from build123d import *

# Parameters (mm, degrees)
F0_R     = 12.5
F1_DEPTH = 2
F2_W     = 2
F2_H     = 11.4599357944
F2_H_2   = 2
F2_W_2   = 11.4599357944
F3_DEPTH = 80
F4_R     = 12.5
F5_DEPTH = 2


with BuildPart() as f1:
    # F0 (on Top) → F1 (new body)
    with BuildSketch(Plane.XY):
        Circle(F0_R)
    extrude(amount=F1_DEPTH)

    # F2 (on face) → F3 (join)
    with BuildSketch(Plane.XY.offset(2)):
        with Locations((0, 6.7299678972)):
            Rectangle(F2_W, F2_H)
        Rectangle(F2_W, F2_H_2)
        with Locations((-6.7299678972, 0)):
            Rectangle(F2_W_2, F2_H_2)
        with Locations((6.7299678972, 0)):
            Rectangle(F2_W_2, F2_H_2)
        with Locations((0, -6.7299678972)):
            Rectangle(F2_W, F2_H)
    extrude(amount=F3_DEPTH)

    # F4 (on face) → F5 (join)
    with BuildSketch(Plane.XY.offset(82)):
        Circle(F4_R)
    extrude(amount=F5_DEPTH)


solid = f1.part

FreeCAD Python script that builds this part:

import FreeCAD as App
import Part
import Sketcher
Q = App.Units.Quantity

doc = App.newDocument("Part")
body = doc.addObject("PartDesign::Body", "Body")

sketch1 = body.newObject("Sketcher::SketchObject", "Sketch")
sketch1.AttachmentSupport = (doc.getObject("XY_Plane"), [""])
sketch1.MapMode = "FlatFace"
sketch1.addGeometry(Part.Circle(App.Vector(0, 0, 0), App.Vector(0, 0, 1), 12), False)
sketch1.addConstraint([
    Sketcher.Constraint("Coincident", 0, 3, -1, 1),
    Sketcher.Constraint("Diameter", 0, Q("25 mm")),
])
pad1 = body.newObject("PartDesign::Pad", "Pad")
pad1.Profile = sketch1
pad1.Length = 2

sketch2 = body.newObject("Sketcher::SketchObject", "Sketch001")
sketch2.AttachmentSupport = (doc.getObject("XY_Plane"), [""])
sketch2.MapMode = "FlatFace"
sketch2.AttachmentOffset = App.Placement(App.Vector(0, 0, 2), App.Rotation())
sketch2.addGeometry([
    Part.LineSegment(App.Vector(-1, 12.5, 0), App.Vector(-1, 1, 0)),
    Part.LineSegment(App.Vector(-1, 1, 0), App.Vector(-12.5, 1, 0)),
    Part.LineSegment(App.Vector(-12.5, 1, 0), App.Vector(-12.5, -1, 0)),
    Part.LineSegment(App.Vector(-12.5, -1, 0), App.Vector(-1, -1, 0)),
    Part.LineSegment(App.Vector(-1, -1, 0), App.Vector(-1, -12.5, 0)),
    Part.LineSegment(App.Vector(-1, -12.5, 0), App.Vector(1, -12.5, 0)),
    Part.LineSegment(App.Vector(1, -12.5, 0), App.Vector(1, -1, 0)),
    Part.LineSegment(App.Vector(1, -1, 0), App.Vector(12.5, -1, 0)),
    Part.LineSegment(App.Vector(12.5, -1, 0), App.Vector(12.5, 1, 0)),
    Part.LineSegment(App.Vector(12.5, 1, 0), App.Vector(1, 1, 0)),
    Part.LineSegment(App.Vector(1, 1, 0), App.Vector(1, 12.5, 0)),
    Part.LineSegment(App.Vector(1, 12.5, 0), App.Vector(-1, 12.5, 0)),
], False)
sketch2.addConstraint([
    Sketcher.Constraint("Coincident", 0, 2, 1, 1),
    Sketcher.Constraint("Coincident", 1, 2, 2, 1),
    Sketcher.Constraint("Coincident", 2, 2, 3, 1),
    Sketcher.Constraint("Coincident", 3, 2, 4, 1),
    Sketcher.Constraint("Coincident", 4, 2, 5, 1),
    Sketcher.Constraint("Coincident", 5, 2, 6, 1),
    Sketcher.Constraint("Coincident", 6, 2, 7, 1),
    Sketcher.Constraint("Coincident", 7, 2, 8, 1),
    Sketcher.Constraint("Coincident", 8, 2, 9, 1),
    Sketcher.Constraint("Coincident", 9, 2, 10, 1),
    Sketcher.Constraint("Coincident", 10, 2, 11, 1),
    Sketcher.Constraint("Coincident", 11, 2, 0, 1),
    Sketcher.Constraint("Vertical", 0),
    Sketcher.Constraint("Horizontal", 1),
    Sketcher.Constraint("Vertical", 2),
    Sketcher.Constraint("Horizontal", 3),
    Sketcher.Constraint("Vertical", 4),
    Sketcher.Constraint("Horizontal", 5),
    Sketcher.Constraint("Vertical", 6),
    Sketcher.Constraint("Horizontal", 7),
    Sketcher.Constraint("Vertical", 8),
    Sketcher.Constraint("Horizontal", 9),
    Sketcher.Constraint("Vertical", 10),
    Sketcher.Constraint("Horizontal", 11),
    Sketcher.Constraint("Symmetric", 0, 2, 6, 2, -1, 1),
    Sketcher.Constraint("Symmetric", 2, 2, 8, 2, -1, 1),
    Sketcher.Constraint("Symmetric", 4, 2, 10, 2, -1, 1),
    Sketcher.Constraint("Symmetric", 3, 2, 6, 2, -2),
    Sketcher.Constraint("Equal", 9, 0),
    Sketcher.Constraint("Equal", 11, 2),
    Sketcher.Constraint("DistanceX", 5, 1, 5, 2, Q("2 mm")),
    Sketcher.Constraint("DistanceX", 1, 2, 1, 1, Q("11.459936 mm")),
])
pad2 = body.newObject("PartDesign::Pad", "Pad001")
pad2.Profile = sketch2
pad2.Length = 80

sketch3 = body.newObject("Sketcher::SketchObject", "Sketch002")
sketch3.AttachmentSupport = (doc.getObject("XY_Plane"), [""])
sketch3.MapMode = "FlatFace"
sketch3.AttachmentOffset = App.Placement(App.Vector(0, 0, 82), App.Rotation())
sketch3.addGeometry(Part.Circle(App.Vector(0, 0, 0), App.Vector(0, 0, 1), 12), False)
sketch3.addConstraint([
    Sketcher.Constraint("Coincident", 0, 3, -1, 1),
    Sketcher.Constraint("Diameter", 0, Q("25 mm")),
])
pad3 = body.newObject("PartDesign::Pad", "Pad002")
pad3.Profile = sketch3
pad3.Length = 2

doc.recompute()
